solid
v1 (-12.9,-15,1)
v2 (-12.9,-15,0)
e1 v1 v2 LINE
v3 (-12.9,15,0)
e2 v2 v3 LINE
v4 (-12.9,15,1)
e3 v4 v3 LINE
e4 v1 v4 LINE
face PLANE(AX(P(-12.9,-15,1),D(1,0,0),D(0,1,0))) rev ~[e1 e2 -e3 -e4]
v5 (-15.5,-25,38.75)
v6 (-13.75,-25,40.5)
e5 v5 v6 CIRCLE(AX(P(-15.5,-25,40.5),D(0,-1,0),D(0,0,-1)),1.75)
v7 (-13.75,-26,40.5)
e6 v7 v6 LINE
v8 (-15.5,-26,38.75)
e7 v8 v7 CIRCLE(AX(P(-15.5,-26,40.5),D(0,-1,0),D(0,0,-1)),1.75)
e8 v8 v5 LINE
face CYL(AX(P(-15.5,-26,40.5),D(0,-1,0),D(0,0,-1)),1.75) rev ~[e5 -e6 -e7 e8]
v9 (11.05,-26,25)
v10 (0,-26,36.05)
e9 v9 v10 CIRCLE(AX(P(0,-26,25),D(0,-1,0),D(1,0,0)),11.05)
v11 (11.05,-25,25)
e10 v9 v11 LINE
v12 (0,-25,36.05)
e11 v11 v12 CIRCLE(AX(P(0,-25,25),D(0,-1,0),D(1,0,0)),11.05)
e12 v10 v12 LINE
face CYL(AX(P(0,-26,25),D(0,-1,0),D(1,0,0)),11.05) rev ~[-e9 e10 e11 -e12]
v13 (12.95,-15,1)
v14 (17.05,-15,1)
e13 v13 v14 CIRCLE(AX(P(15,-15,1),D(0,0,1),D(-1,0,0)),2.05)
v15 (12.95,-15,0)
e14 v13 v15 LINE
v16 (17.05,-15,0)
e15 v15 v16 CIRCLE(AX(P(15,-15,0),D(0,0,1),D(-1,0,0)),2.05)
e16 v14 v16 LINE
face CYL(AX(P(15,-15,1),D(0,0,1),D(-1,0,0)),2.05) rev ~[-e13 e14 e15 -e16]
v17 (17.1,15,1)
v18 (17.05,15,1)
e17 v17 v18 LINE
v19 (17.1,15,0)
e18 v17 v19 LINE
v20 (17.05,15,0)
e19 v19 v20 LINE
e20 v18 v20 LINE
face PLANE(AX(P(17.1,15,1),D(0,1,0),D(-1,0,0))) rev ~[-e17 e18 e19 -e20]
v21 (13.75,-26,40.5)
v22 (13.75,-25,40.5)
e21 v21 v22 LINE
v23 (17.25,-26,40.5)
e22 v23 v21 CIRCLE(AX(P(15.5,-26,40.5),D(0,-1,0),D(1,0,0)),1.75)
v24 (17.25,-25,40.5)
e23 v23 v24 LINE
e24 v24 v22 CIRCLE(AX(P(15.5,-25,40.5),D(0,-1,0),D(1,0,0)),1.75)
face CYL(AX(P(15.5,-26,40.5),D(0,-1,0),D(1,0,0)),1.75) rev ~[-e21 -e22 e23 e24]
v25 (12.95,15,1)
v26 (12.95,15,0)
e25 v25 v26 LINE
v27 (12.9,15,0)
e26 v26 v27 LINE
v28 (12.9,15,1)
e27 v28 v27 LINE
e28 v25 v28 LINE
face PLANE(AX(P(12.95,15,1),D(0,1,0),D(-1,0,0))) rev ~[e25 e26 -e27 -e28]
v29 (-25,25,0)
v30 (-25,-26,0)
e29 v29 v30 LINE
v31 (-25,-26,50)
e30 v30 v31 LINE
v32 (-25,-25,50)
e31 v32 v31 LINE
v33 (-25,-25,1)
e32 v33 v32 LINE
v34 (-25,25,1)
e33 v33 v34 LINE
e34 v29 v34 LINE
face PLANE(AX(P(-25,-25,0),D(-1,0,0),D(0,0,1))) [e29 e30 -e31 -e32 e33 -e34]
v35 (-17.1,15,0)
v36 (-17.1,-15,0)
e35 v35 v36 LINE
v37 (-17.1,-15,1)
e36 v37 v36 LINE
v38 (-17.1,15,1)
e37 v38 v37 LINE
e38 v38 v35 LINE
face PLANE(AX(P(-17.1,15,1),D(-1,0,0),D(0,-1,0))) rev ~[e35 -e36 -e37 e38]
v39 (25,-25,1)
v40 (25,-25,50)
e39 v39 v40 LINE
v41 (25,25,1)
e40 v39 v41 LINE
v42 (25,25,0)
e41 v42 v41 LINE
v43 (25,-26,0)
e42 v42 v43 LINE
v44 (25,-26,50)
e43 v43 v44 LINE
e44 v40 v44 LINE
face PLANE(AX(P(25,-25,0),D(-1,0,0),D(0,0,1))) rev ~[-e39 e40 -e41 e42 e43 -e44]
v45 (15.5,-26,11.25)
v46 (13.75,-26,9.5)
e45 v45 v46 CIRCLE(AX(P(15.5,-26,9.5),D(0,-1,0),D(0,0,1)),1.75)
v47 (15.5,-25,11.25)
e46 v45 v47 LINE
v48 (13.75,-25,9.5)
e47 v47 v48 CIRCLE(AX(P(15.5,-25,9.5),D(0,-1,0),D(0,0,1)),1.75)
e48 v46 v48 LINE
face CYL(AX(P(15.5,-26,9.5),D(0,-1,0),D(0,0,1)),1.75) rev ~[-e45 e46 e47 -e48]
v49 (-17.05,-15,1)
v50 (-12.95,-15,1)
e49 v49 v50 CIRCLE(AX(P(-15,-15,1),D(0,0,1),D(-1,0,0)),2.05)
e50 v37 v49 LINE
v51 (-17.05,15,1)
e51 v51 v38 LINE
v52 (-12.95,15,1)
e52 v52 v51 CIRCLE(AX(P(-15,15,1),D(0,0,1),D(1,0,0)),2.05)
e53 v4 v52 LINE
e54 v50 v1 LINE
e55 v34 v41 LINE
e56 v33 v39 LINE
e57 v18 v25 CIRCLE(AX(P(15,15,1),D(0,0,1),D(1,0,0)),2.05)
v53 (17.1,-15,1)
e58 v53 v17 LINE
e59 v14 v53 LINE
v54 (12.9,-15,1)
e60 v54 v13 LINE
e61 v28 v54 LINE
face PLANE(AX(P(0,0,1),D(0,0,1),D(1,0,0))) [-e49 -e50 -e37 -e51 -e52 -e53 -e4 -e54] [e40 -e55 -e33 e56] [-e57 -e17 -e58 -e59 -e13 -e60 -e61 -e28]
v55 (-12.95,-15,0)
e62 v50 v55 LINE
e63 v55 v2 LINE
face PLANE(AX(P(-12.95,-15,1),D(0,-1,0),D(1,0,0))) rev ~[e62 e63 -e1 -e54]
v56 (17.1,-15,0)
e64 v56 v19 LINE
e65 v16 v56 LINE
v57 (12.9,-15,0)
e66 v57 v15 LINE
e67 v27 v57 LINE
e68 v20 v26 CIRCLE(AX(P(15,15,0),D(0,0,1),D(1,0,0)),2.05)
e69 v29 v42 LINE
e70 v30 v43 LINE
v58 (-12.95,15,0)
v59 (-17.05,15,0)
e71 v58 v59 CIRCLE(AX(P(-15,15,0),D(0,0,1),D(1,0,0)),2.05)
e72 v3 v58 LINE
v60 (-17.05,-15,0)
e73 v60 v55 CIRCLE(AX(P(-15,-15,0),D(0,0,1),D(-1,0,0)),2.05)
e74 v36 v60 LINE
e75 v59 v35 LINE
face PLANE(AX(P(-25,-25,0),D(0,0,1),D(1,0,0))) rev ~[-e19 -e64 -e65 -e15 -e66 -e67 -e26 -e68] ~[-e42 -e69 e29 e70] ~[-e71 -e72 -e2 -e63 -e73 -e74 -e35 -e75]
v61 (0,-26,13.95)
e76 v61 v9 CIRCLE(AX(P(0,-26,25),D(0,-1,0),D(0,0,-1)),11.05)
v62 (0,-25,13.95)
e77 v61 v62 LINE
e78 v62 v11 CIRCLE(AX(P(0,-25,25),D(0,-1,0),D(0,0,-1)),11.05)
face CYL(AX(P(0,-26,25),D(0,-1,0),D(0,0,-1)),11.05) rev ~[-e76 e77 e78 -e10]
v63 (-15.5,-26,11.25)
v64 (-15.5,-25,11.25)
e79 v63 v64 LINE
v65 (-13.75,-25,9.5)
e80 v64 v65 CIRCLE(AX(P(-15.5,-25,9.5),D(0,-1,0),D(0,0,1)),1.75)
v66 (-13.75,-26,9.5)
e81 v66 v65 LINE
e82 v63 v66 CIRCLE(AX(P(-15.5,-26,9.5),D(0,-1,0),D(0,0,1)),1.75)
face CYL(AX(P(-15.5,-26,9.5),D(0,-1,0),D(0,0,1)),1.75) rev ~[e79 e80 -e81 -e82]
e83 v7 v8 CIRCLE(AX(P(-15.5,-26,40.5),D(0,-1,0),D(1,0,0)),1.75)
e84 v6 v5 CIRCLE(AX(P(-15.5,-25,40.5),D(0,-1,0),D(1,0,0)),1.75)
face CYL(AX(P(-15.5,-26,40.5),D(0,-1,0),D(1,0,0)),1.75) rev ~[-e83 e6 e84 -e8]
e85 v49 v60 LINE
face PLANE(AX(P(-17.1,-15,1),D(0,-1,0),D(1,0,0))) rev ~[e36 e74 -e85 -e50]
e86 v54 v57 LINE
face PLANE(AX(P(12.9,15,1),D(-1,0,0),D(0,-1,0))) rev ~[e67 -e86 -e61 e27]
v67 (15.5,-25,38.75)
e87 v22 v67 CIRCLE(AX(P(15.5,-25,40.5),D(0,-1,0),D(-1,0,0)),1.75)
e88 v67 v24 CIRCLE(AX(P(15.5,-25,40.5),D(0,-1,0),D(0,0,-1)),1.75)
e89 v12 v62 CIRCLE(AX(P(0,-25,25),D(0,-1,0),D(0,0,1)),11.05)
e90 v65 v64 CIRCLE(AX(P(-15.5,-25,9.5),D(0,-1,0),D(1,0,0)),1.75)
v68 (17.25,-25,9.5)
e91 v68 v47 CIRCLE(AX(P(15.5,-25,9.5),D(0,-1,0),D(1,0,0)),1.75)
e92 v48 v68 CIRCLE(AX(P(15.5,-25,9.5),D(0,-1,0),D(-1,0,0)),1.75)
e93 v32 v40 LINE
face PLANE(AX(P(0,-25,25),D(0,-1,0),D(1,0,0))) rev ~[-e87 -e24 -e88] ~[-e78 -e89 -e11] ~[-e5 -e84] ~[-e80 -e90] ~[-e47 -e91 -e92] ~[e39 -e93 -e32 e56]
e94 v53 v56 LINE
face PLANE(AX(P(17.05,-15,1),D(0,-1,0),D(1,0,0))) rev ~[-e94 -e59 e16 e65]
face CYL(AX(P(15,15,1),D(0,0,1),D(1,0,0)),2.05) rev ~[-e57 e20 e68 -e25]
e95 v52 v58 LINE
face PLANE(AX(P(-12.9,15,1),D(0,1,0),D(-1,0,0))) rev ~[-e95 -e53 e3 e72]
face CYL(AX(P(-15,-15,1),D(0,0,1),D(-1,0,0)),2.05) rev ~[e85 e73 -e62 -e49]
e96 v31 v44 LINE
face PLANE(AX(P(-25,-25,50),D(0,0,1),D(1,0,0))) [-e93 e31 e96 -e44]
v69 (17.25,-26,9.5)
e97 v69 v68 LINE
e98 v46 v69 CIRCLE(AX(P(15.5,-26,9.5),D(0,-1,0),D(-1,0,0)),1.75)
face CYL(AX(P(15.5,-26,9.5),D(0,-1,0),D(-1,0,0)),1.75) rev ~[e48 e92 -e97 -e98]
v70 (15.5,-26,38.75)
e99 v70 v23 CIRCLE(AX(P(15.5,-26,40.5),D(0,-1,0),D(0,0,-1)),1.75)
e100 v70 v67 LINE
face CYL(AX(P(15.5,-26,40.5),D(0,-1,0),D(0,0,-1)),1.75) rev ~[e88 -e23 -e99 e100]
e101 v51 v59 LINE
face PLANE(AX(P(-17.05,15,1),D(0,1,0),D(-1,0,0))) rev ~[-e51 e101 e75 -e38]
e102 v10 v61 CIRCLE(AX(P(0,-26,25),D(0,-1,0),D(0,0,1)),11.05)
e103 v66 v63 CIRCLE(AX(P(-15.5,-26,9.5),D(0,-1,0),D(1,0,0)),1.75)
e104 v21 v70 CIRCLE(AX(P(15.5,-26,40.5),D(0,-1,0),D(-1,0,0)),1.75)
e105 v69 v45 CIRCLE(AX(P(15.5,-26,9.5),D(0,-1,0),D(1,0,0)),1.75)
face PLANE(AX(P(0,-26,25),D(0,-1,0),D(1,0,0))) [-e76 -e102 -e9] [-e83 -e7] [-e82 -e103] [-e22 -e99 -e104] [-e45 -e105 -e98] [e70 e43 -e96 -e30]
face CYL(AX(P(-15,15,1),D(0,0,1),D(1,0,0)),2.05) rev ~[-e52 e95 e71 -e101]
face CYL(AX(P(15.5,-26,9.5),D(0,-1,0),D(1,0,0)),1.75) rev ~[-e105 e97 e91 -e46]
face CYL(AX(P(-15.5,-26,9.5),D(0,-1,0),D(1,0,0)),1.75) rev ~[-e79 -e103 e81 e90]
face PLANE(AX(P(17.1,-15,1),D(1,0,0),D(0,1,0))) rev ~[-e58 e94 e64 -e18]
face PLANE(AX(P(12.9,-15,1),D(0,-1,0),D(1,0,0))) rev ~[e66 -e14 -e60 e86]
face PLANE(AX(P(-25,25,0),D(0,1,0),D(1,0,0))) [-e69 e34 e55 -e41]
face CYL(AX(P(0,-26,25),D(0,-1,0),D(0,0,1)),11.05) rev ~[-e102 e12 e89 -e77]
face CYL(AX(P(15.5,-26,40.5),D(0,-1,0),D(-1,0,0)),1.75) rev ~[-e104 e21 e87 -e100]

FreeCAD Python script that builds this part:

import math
import FreeCAD as App
import Part
import Sketcher


def add_polygon(sketch, points):
    """Adds a closed chain of lines whose ends are joined by coincident constraints."""
    first, n = sketch.GeometryCount, len(points)
    for a, b in zip(points, points[1:] + points[:1]):
        sketch.addGeometry(Part.LineSegment(App.Vector(*a, 0), App.Vector(*b, 0)), False)
    for i in range(n):
        sketch.addConstraint(Sketcher.Constraint("Coincident", first + i, 2, first + (i + 1) % n, 1))

doc = App.newDocument("Part")
body = doc.addObject("PartDesign::Body", "Body")

sketch1 = body.newObject("Sketcher::SketchObject", "Sketch")
sketch1.AttachmentSupport = (doc.getObject("XY_Plane"), [""])
sketch1.MapMode = "FlatFace"
add_polygon(sketch1, [(-25, 25), (-25, -25), (25, -25), (25, 25)])
sketch1.addConstraint([
    Sketcher.Constraint("Vertical", 0),
    Sketcher.Constraint("Horizontal", 1),
    Sketcher.Constraint("Vertical", 2),
    Sketcher.Constraint("Horizontal", 3),
    Sketcher.Constraint("Symmetric", 0, 2, 2, 2, -1, 1),
    Sketcher.Constraint("Equal", 3, 0),
    Sketcher.Constraint("DistanceX", 1, 1, 1, 2, 50.0),
])
pad1 = body.newObject("PartDesign::Pad", "Pad")
pad1.Profile = sketch1
pad1.Length = 1

sketch2 = body.newObject("Sketcher::SketchObject", "Sketch001")
sketch2.AttachmentSupport = (doc.getObject("XZ_Plane"), [""])
sketch2.MapMode = "FlatFace"
sketch2.AttachmentOffset = App.Placement(App.Vector(0, 0, 25), App.Rotation())
add_polygon(sketch2, [(-25, 50), (-25, 0), (25, 0), (25, 50)])
sketch2.addConstraint([
    Sketcher.Constraint("Vertical", 0),
    Sketcher.Constraint("Horizontal", 1),
    Sketcher.Constraint("Vertical", 2),
    Sketcher.Constraint("Horizontal", 3),
    Sketcher.Constraint("Symmetric", 0, 2, 1, 2, -1, 1),
    Sketcher.Constraint("Equal", 3, 0),
    Sketcher.Constraint("DistanceX", 1, 1, 1, 2, 50.0),
])
pad2 = body.newObject("PartDesign::Pad", "Pad001")
pad2.Profile = sketch2
pad2.Length = 1

sketch3 = body.newObject("Sketcher::SketchObject", "Sketch002")
sketch3.AttachmentSupport = (doc.getObject("XZ_Plane"), [""])
sketch3.MapMode = "FlatFace"
sketch3.AttachmentOffset = App.Placement(App.Vector(0, 0, 26), App.Rotation())
sketch3.addGeometry([
    Part.ArcOfCircle(Part.Circle(App.Vector(15.5, 40.5, 0), App.Vector(0, 0, 1), 1.8), math.radians(180), math.radians(270)),
    Part.ArcOfCircle(Part.Circle(App.Vector(15.5, 40.5, 0), App.Vector(0, 0, 1), 1.8), math.radians(-90), math.radians(0)),
    Part.ArcOfCircle(Part.Circle(App.Vector(15.5, 40.5, 0), App.Vector(0, 0, 1), 1.8), math.radians(0), math.radians(180)),
    Part.ArcOfCircle(Part.Circle(App.Vector(-15.5, 40.5, 0), App.Vector(0, 0, 1), 1.8), math.radians(-90), math.radians(0)),
    Part.ArcOfCircle(Part.Circle(App.Vector(-15.5, 40.5, 0), App.Vector(0, 0, 1), 1.8), math.radians(0), math.radians(270)),
    Part.ArcOfCircle(Part.Circle(App.Vector(15.5, 9.5, 0), App.Vector(0, 0, 1), 1.8), math.radians(90), math.radians(180)),
    Part.ArcOfCircle(Part.Circle(App.Vector(15.5, 9.5, 0), App.Vector(0, 0, 1), 1.8), math.radians(180), math.radians(360)),
    Part.ArcOfCircle(Part.Circle(App.Vector(15.5, 9.5, 0), App.Vector(0, 0, 1), 1.8), math.radians(0), math.radians(90)),
    Part.ArcOfCircle(Part.Circle(App.Vector(-15.5, 9.5, 0), App.Vector(0, 0, 1), 1.8), math.radians(0), math.radians(90)),
    Part.ArcOfCircle(Part.Circle(App.Vector(-15.5, 9.5, 0), App.Vector(0, 0, 1), 1.8), math.radians(90), math.radians(360)),
    Part.ArcOfCircle(Part.Circle(App.Vector(0, 25, 0), App.Vector(0, 0, 1), 11.1), math.radians(90), math.radians(270)),
    Part.ArcOfCircle(Part.Circle(App.Vector(0, 25, 0), App.Vector(0, 0, 1), 11.1), math.radians(-90), math.radians(0)),
    Part.ArcOfCircle(Part.Circle(App.Vector(0, 25, 0), App.Vector(0, 0, 1), 11.1), math.radians(0), math.radians(90)),
], False)
sketch3.addConstraint([
    Sketcher.Constraint("Tangent", 0, 2, 1, 1),
    Sketcher.Constraint("Tangent", 1, 2, 2, 1),
    Sketcher.Constraint("Tangent", 2, 2, 0, 1),
    Sketcher.Constraint("Tangent", 3, 1, 4, 2),
    Sketcher.Constraint("Coincident", 4, 1, 3, 2),
    Sketcher.Constraint("Tangent", 5, 2, 6, 1),
    Sketcher.Constraint("Tangent", 6, 2, 7, 1),
    Sketcher.Constraint("Tangent", 7, 2, 5, 1),
    Sketcher.Constraint("Tangent", 8, 1, 9, 2),
    Sketcher.Constraint("Coincident", 9, 1, 8, 2),
    Sketcher.Constraint("Tangent", 10, 2, 11, 1),
    Sketcher.Constraint("Tangent", 11, 2, 12, 1),
    Sketcher.Constraint("Tangent", 12, 2, 10, 1),
    Sketcher.Constraint("Equal", 2, 3),
    Sketcher.Constraint("Equal", 4, 5),
    Sketcher.Constraint("Equal", 7, 8),
    Sketcher.Constraint("Symmetric", 0, 3, 3, 3, -2),
    Sketcher.Constraint("Symmetric", 5, 3, 8, 3, -2),
    Sketcher.Constraint("PointOnObject", 10, 3, -2),
    Sketcher.Constraint("PointOnObject", 10, 2, -2),
    Sketcher.Constraint("PointOnObject", 12, 2, -2),
    Sketcher.Constraint("Horizontal", 4, 3, 1, 2),
    Sketcher.Constraint("Horizontal", 1, 2, 2, 2),
    Sketcher.Constraint("Horizontal", 2, 2, 4, 1),
    Sketcher.Constraint("Horizontal", 9, 3, 5, 2),
    Sketcher.Constraint("Horizontal", 5, 2, 6, 2),
    Sketcher.Constraint("Horizontal", 6, 2, 8, 1),
    Sketcher.Constraint("Horizontal", 12, 3, 11, 2),
    Sketcher.Constraint("Vertical", 2, 3, 5, 3),
    Sketcher.Constraint("Vertical", 7, 3, 0, 2),
    Sketcher.Constraint("Vertical", 9, 3, 3, 1),
    Sketcher.Constraint("Vertical", 0, 2, 7, 2),
    Sketcher.Constraint("Vertical", 3, 1, 9, 1),
    Sketcher.Constraint("Radius", 0, 1.75),
    Sketcher.Constraint("Radius", 10, 11.05),
    Sketcher.Constraint("DistanceY", -1, 1, 10, 3, 25.0),
    Sketcher.Constraint("DistanceX", 3, 3, 0, 3, 31.0),
    Sketcher.Constraint("DistanceY", 5, 3, 0, 3, 31.0),
    Sketcher.Constraint("DistanceY", -1, 1, 0, 3, 40.5),
])
pocket1 = body.newObject("PartDesign::Pocket", "Pocket")
pocket1.Profile = sketch3
pocket1.Length = 1

sketch4 = body.newObject("Sketcher::SketchObject", "Sketch003")
sketch4.AttachmentSupport = (doc.getObject("XY_Plane"), [""])
sketch4.MapMode = "FlatFace"
sketch4.AttachmentOffset = App.Placement(App.Vector(0, 0, 1), App.Rotation())
sketch4.addGeometry([
    Part.ArcOfCircle(Part.Circle(App.Vector(-15, 15, 0), App.Vector(0, 0, 1), 2.05), math.radians(0), math.radians(180)),
    Part.LineSegment(App.Vector(-17.05, 15, 0), App.Vector(-17.1, 15, 0)),
    Part.LineSegment(App.Vector(-17.1, 15, 0), App.Vector(-17.1, -15, 0)),
    Part.LineSegment(App.Vector(-17.1, -15, 0), App.Vector(-17.05, -15, 0)),
    Part.ArcOfCircle(Part.Circle(App.Vector(-15, -15, 0), App.Vector(0, 0, 1), 2.05), math.radians(180), math.radians(360)),
    Part.LineSegment(App.Vector(-12.95, -15, 0), App.Vector(-12.9, -15, 0)),
    Part.LineSegment(App.Vector(-12.9, -15, 0), App.Vector(-12.9, 15, 0)),
    Part.LineSegment(App.Vector(-12.9, 15, 0), App.Vector(-12.95, 15, 0)),
    Part.ArcOfCircle(Part.Circle(App.Vector(15, -15, 0), App.Vector(0, 0, 1), 2.05), math.radians(180), math.radians(360)),
    Part.LineSegment(App.Vector(17.05, -15, 0), App.Vector(17.1, -15, 0)),
    Part.LineSegment(App.Vector(17.1, -15, 0), App.Vector(17.1, 15, 0)),
    Part.LineSegment(App.Vector(17.1, 15, 0), App.Vector(17.05, 15, 0)),
    Part.ArcOfCircle(Part.Circle(App.Vector(15, 15, 0), App.Vector(0, 0, 1), 2.05), math.radians(0), math.radians(180)),
    Part.LineSegment(App.Vector(12.95, 15, 0), App.Vector(12.9, 15, 0)),
    Part.LineSegment(App.Vector(12.9, 15, 0), App.Vector(12.9, -15, 0)),
    Part.LineSegment(App.Vector(12.9, -15, 0), App.Vector(12.95, -15, 0)),
], False)
sketch4.addConstraint([
    Sketcher.Constraint("Coincident", 0, 2, 1, 1),
    Sketcher.Constraint("Coincident", 1, 2, 2, 1),
    Sketcher.Constraint("Coincident", 2, 2, 3, 1),
    Sketcher.Constraint("Coincident", 3, 2, 4, 1),
    Sketcher.Constraint("Coincident", 4, 2, 5, 1),
    Sketcher.Constraint("Coincident", 5, 2, 6, 1),
    Sketcher.Constraint("Coincident", 6, 2, 7, 1),
    Sketcher.Constraint("Coincident", 7, 2, 0, 1),
    Sketcher.Constraint("Coincident", 8, 2, 9, 1),
    Sketcher.Constraint("Coincident", 9, 2, 10, 1),
    Sketcher.Constraint("Coincident", 10, 2, 11, 1),
    Sketcher.Constraint("Coincident", 11, 2, 12, 1),
    Sketcher.Constraint("Coincident", 12, 2, 13, 1),
    Sketcher.Constraint("Coincident", 13, 2, 14, 1),
    Sketcher.Constraint("Coincident", 14, 2, 15, 1),
    Sketcher.Constraint("Coincident", 15, 2, 8, 1),
    Sketcher.Constraint("Horizontal", 1),
    Sketcher.Constraint("Vertical", 2),
    Sketcher.Constraint("Horizontal", 3),
    Sketcher.Constraint("Horizontal", 5),
    Sketcher.Constraint("Vertical", 6),
    Sketcher.Constraint("Horizontal", 7),
    Sketcher.Constraint("Horizontal", 9),
    Sketcher.Constraint("Vertical", 10),
    Sketcher.Constraint("Horizontal", 11),
    Sketcher.Constraint("Horizontal", 13),
    Sketcher.Constraint("Vertical", 14),
    Sketcher.Constraint("Horizontal", 15),
    Sketcher.Constraint("Equal", 0, 4),
    Sketcher.Constraint("Equal", 4, 8),
    Sketcher.Constraint("Equal", 8, 12),
    Sketcher.Constraint("Symmetric", 0, 3, 8, 3, -1, 1),
    Sketcher.Constraint("Symmetric", 4, 3, 12, 3, -1, 1),
    Sketcher.Constraint("Symmetric", 1, 2, 9, 2, -1, 1),
    Sketcher.Constraint("Symmetric", 5, 2, 13, 2, -1, 1),
    Sketcher.Constraint("Symmetric", 4, 3, 8, 3, -2),
    Sketcher.Constraint("Horizontal", 12, 3, 0, 2),
    Sketcher.Constraint("Horizontal", 8, 3, 2, 2),
    Sketcher.Constraint("Horizontal", 3, 2, 4, 2),
    Sketcher.Constraint("Horizontal", 1, 2, 6, 2),
    Sketcher.Constraint("Horizontal", 7, 2, 10, 2),
    Sketcher.Constraint("Horizontal", 9, 2, 14, 2),
    Sketcher.Constraint("Equal", 3, 5),
    Sketcher.Constraint("DistanceY", 2, 2, 2, 1, 30.0),
    Sketcher.Constraint("Radius", 0, 2.05),
    Sketcher.Constraint("DistanceX", 0, 3, -1, 1, 15.0),
    Sketcher.Constraint("DistanceX", 1, 2, 1, 1, 0.05),
])
pocket2 = body.newObject("PartDesign::Pocket", "Pocket001")
pocket2.Profile = sketch4
pocket2.Length = 1

doc.recompute()
